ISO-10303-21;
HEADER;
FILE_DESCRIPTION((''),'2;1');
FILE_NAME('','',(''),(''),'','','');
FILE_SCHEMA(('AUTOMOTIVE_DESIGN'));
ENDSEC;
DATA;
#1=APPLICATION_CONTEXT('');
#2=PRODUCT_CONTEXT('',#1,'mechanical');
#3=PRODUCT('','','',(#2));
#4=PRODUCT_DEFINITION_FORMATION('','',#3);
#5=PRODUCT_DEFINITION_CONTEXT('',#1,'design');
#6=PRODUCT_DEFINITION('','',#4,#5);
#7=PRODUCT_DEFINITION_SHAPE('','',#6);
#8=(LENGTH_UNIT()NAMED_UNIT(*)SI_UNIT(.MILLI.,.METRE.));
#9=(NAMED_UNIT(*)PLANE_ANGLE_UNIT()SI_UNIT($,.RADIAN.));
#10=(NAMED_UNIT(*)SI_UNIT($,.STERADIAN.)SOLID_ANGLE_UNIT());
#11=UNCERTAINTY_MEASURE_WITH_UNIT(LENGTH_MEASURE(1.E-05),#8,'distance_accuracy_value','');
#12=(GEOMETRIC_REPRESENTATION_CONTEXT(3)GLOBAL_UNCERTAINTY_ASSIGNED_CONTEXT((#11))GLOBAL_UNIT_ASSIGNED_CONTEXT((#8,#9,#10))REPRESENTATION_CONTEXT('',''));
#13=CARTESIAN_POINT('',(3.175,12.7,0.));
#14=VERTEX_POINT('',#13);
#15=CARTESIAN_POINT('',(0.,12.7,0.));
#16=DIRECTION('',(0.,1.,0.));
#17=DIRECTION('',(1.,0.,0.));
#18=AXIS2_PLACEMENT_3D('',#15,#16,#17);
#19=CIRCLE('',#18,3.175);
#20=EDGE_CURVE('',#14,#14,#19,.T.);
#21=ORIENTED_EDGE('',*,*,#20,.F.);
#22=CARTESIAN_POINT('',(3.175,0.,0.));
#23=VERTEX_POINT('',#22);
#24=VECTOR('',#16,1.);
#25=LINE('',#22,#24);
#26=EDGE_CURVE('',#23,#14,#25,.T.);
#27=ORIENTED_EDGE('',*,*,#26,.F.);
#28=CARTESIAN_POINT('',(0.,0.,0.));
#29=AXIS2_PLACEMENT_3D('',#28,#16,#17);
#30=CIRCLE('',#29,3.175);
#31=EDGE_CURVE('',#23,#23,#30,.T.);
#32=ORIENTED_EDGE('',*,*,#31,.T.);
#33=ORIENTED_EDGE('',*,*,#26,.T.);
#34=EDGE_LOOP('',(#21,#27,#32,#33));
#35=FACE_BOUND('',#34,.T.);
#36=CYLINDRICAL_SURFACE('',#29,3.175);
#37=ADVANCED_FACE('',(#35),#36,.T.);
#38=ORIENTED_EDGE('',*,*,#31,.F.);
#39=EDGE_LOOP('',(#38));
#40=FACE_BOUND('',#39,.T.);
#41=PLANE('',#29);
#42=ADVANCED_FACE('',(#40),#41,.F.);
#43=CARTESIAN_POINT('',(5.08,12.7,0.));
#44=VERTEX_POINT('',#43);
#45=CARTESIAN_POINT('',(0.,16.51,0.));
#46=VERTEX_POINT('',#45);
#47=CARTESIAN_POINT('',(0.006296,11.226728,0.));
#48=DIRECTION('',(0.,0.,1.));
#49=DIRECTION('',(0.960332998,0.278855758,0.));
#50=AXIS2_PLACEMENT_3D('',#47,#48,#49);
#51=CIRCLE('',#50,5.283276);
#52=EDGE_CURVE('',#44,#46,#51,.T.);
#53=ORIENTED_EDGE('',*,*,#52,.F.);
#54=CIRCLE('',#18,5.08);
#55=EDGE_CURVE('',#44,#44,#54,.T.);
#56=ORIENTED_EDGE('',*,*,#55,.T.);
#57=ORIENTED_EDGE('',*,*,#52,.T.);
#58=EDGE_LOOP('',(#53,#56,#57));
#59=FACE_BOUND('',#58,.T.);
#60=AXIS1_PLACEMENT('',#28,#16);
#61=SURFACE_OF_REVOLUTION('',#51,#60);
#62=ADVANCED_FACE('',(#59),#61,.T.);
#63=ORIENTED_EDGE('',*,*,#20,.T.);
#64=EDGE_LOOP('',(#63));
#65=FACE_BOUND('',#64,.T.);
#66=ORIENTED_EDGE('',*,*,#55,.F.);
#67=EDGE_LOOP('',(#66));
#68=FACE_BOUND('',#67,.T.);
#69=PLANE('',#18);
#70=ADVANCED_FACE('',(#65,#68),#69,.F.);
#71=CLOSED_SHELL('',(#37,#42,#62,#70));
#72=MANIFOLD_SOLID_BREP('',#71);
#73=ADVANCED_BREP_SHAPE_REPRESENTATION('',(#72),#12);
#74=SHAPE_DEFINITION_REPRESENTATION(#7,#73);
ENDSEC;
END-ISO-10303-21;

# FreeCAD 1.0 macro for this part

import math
import FreeCAD as App
import Part
import Sketcher
Q = App.Units.Quantity

doc = App.newDocument("Part")
body = doc.addObject("PartDesign::Body", "Body")

# Sketch on XY plane
sketch1 = body.newObject("Sketcher::SketchObject", "Sketch")
sketch1.AttachmentSupport = (doc.getObject("XY_Plane"), [""])
sketch1.MapMode = "FlatFace"
sketch1.addGeometry(Part.LineSegment(App.Vector(0, 16.5, 0), App.Vector(0, 0, 0)), False)
sketch1.addGeometry(Part.LineSegment(App.Vector(0, 0, 0), App.Vector(3.2, 0, 0)), False)
sketch1.addGeometry(Part.LineSegment(App.Vector(3.2, 0, 0), App.Vector(3.2, 12.7, 0)), False)
sketch1.addGeometry(Part.LineSegment(App.Vector(3.2, 12.7, 0), App.Vector(5.1, 12.7, 0)), False)
sketch1.addGeometry(Part.ArcOfCircle(Part.Circle(App.Vector(0, 11.2, 0), App.Vector(0, 0, 1), 5.3), math.radians(16), math.radians(90)), False)
sketch1.addConstraint(Sketcher.Constraint("Coincident", 0, 2, 1, 1))
sketch1.addConstraint(Sketcher.Constraint("Coincident", 1, 2, 2, 1))
sketch1.addConstraint(Sketcher.Constraint("Coincident", 2, 2, 3, 1))
sketch1.addConstraint(Sketcher.Constraint("Coincident", 3, 2, 4, 1))
sketch1.addConstraint(Sketcher.Constraint("Coincident", 4, 2, 0, 1))
sketch1.addConstraint(Sketcher.Constraint("Vertical", 0))
sketch1.addConstraint(Sketcher.Constraint("Horizontal", 1))
sketch1.addConstraint(Sketcher.Constraint("Vertical", 2))
sketch1.addConstraint(Sketcher.Constraint("Horizontal", 3))
sketch1.addConstraint(Sketcher.Constraint("Coincident", 0, 2, -1, 1))
sketch1.addConstraint(Sketcher.Constraint("DistanceY", 2, 1, 2, 2, Q("0.5 in")))
sketch1.addConstraint(Sketcher.Constraint("Radius", 4, Q("0.208 in")))
sketch1.addConstraint(Sketcher.Constraint("DistanceY", 0, 2, 0, 1, Q("0.65 in")))
sketch1.addConstraint(Sketcher.Constraint("DistanceX", 1, 1, 1, 2, Q("0.125 in")))
sketch1.addConstraint(Sketcher.Constraint("DistanceX", 3, 1, 3, 2, Q("0.075 in")))
revolution = body.newObject("PartDesign::Revolution", "Revolution")
revolution.Profile = sketch1
revolution.ReferenceAxis = (sketch1, ["V_Axis"])
revolution.Angle = 360

doc.recompute()
